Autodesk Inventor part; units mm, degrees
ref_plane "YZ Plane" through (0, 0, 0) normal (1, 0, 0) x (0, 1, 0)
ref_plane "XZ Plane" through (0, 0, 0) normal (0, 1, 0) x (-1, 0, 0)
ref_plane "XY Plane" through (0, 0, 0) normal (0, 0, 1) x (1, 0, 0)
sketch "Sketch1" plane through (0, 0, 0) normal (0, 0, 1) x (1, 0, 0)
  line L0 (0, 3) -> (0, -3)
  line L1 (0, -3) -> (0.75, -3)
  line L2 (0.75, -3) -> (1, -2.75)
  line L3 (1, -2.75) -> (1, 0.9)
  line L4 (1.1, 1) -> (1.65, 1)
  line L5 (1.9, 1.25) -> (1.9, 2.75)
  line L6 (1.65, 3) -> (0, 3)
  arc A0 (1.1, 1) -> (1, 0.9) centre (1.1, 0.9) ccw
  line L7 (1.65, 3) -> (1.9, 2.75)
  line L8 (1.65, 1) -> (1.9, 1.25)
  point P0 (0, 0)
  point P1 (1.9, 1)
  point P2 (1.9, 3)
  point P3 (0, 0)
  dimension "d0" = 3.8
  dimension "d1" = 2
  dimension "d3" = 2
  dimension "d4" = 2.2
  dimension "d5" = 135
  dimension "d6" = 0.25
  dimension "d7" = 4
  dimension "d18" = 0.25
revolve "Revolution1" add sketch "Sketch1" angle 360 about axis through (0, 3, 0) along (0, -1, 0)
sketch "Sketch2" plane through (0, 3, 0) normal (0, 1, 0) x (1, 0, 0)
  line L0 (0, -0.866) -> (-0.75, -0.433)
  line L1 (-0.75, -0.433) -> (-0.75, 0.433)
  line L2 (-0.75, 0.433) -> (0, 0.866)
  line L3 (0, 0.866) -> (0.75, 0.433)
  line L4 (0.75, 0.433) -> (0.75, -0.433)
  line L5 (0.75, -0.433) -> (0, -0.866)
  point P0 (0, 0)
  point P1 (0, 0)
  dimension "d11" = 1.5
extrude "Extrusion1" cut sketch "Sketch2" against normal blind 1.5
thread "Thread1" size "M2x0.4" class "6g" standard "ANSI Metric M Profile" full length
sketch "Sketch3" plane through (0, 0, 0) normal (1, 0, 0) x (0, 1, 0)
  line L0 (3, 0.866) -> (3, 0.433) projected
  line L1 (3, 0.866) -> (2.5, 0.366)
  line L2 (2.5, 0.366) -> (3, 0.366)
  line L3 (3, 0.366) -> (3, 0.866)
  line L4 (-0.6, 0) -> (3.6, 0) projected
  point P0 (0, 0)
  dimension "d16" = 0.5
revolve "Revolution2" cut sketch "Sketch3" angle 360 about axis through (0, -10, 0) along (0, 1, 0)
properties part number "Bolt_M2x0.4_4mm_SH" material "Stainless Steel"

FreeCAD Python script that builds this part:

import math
import FreeCAD as App
import Part
import Sketcher
Q = App.Units.Quantity


def add_polygon(sketch, points):
    """Adds a closed chain of lines whose ends are joined by coincident constraints."""
    first, n = sketch.GeometryCount, len(points)
    for a, b in zip(points, points[1:] + points[:1]):
        sketch.addGeometry(Part.LineSegment(App.Vector(*a, 0), App.Vector(*b, 0)), False)
    for i in range(n):
        sketch.addConstraint(Sketcher.Constraint("Coincident", first + i, 2, first + (i + 1) % n, 1))

doc = App.newDocument("Part")
body = doc.addObject("PartDesign::Body", "Body")

sketch1 = body.newObject("Sketcher::SketchObject", "Sketch")
sketch1.AttachmentSupport = (doc.getObject("XY_Plane"), [""])
sketch1.MapMode = "FlatFace"
sketch1.addGeometry([
    Part.LineSegment(App.Vector(1.65, 3, 0), App.Vector(0, 3, 0)),
    Part.LineSegment(App.Vector(0, 3, 0), App.Vector(0, -3, 0)),
    Part.LineSegment(App.Vector(0, -3, 0), App.Vector(0.75, -3, 0)),
    Part.LineSegment(App.Vector(0.75, -3, 0), App.Vector(1, -2.75, 0)),
    Part.LineSegment(App.Vector(1, -2.75, 0), App.Vector(1, 0.9, 0)),
    Part.ArcOfCircle(Part.Circle(App.Vector(1.1, 0.9, 0), App.Vector(0, 0, 1), 0.1), math.radians(90), math.radians(180)),
    Part.LineSegment(App.Vector(1.1, 1, 0), App.Vector(1.65, 1, 0)),
    Part.LineSegment(App.Vector(1.65, 1, 0), App.Vector(1.9, 1.25, 0)),
    Part.LineSegment(App.Vector(1.9, 1.25, 0), App.Vector(1.9, 2.75, 0)),
    Part.LineSegment(App.Vector(1.9, 2.75, 0), App.Vector(1.65, 3, 0)),
], False)
sketch1.addConstraint([
    Sketcher.Constraint("Coincident", 0, 2, 1, 1),
    Sketcher.Constraint("Coincident", 1, 2, 2, 1),
    Sketcher.Constraint("Coincident", 2, 2, 3, 1),
    Sketcher.Constraint("Coincident", 3, 2, 4, 1),
    Sketcher.Constraint("Tangent", 4, 2, 5, 2),
    Sketcher.Constraint("Tangent", 5, 1, 6, 1),
    Sketcher.Constraint("Coincident", 6, 2, 7, 1),
    Sketcher.Constraint("Coincident", 7, 2, 8, 1),
    Sketcher.Constraint("Coincident", 8, 2, 9, 1),
    Sketcher.Constraint("Coincident", 9, 2, 0, 1),
    Sketcher.Constraint("Horizontal", 0),
    Sketcher.Constraint("Vertical", 1),
    Sketcher.Constraint("Horizontal", 2),
    Sketcher.Constraint("Vertical", 4),
    Sketcher.Constraint("Horizontal", 6),
    Sketcher.Constraint("Vertical", 8),
    Sketcher.Constraint("Symmetric", 0, 2, 1, 2, -1, 1),
    Sketcher.Constraint("Parallel", 3, 7),
    Sketcher.Constraint("Perpendicular", 7, 9),
    Sketcher.Constraint("Vertical", 6, 2, 9, 2),
    Sketcher.Constraint("Equal", 3, 7),
    Sketcher.Constraint("Equal", 7, 9),
    Sketcher.Constraint("DistanceY", 5, 1, 0, 2, 2.0),
    Sketcher.Constraint("DistanceY", 2, 2, 5, 1, 4.0),
    Sketcher.Constraint("Radius", 5, 0.1),
    Sketcher.Constraint("DistanceX", 2, 2, 3, 2, 0.25),
    Sketcher.Constraint("DistanceX", -1, 1, 3, 2, 1.0),
    Sketcher.Constraint("DistanceX", 0, 2, 0, 1, 1.65),
])
revolution = body.newObject("PartDesign::Revolution", "Revolution")
revolution.Profile = sketch1
revolution.ReferenceAxis = (sketch1, ["V_Axis"])
revolution.Angle = 360

sketch2 = body.newObject("Sketcher::SketchObject", "Sketch001")
sketch2.AttachmentSupport = (doc.getObject("XZ_Plane"), [""])
sketch2.MapMode = "FlatFace"
sketch2.AttachmentOffset = App.Placement(App.Vector(0, 0, -3), App.Rotation())
add_polygon(sketch2, [(-0.75, 0.433), (0, 0.866), (0.75, 0.433), (0.75, -0.433), (0, -0.866), (-0.75, -0.433)])
sketch2.addConstraint([
    Sketcher.Constraint("Vertical", 2),
    Sketcher.Constraint("Vertical", 5),
    Sketcher.Constraint("Symmetric", 0, 2, 3, 2, -1, 1),
    Sketcher.Constraint("Symmetric", 1, 2, 4, 2, -1, 1),
    Sketcher.Constraint("PointOnObject", 0, 2, -2),
    Sketcher.Constraint("Parallel", 0, 3),
    Sketcher.Constraint("Horizontal", 2, 2, 4, 2),
    Sketcher.Constraint("DistanceX", 4, 2, 2, 2, 1.5),
    Sketcher.Constraint("Angle", 0, Q("29.9993 deg")),
    Sketcher.Constraint("DistanceY", 2, 2, 2, 1, 0.866),
])
pocket1 = body.newObject("PartDesign::Pocket", "Pocket")
pocket1.Profile = sketch2
pocket1.Length = 1.5
pocket1.Reversed = True

sketch3 = body.newObject("Sketcher::SketchObject", "Sketch002")
sketch3.AttachmentSupport = (doc.getObject("YZ_Plane"), [""])
sketch3.MapMode = "FlatFace"
add_polygon(sketch3, [(3, 0.366), (3, 0.866), (2.5, 0.366)])
sketch3.addConstraint([
    Sketcher.Constraint("Vertical", 0),
    Sketcher.Constraint("Horizontal", 2),
    Sketcher.Constraint("Equal", 2, 0),
    Sketcher.Constraint("DistanceX", 2, 1, 2, 2, 0.5),
    Sketcher.Constraint("DistanceX", -1, 1, 0, 2, 3.0),
    Sketcher.Constraint("DistanceY", -1, 1, 0, 2, 0.866),
])
groove = body.newObject("PartDesign::Groove", "Groove")
groove.Profile = sketch3
groove.ReferenceAxis = (sketch3, ["H_Axis"])
groove.Angle = 360

doc.recompute()
